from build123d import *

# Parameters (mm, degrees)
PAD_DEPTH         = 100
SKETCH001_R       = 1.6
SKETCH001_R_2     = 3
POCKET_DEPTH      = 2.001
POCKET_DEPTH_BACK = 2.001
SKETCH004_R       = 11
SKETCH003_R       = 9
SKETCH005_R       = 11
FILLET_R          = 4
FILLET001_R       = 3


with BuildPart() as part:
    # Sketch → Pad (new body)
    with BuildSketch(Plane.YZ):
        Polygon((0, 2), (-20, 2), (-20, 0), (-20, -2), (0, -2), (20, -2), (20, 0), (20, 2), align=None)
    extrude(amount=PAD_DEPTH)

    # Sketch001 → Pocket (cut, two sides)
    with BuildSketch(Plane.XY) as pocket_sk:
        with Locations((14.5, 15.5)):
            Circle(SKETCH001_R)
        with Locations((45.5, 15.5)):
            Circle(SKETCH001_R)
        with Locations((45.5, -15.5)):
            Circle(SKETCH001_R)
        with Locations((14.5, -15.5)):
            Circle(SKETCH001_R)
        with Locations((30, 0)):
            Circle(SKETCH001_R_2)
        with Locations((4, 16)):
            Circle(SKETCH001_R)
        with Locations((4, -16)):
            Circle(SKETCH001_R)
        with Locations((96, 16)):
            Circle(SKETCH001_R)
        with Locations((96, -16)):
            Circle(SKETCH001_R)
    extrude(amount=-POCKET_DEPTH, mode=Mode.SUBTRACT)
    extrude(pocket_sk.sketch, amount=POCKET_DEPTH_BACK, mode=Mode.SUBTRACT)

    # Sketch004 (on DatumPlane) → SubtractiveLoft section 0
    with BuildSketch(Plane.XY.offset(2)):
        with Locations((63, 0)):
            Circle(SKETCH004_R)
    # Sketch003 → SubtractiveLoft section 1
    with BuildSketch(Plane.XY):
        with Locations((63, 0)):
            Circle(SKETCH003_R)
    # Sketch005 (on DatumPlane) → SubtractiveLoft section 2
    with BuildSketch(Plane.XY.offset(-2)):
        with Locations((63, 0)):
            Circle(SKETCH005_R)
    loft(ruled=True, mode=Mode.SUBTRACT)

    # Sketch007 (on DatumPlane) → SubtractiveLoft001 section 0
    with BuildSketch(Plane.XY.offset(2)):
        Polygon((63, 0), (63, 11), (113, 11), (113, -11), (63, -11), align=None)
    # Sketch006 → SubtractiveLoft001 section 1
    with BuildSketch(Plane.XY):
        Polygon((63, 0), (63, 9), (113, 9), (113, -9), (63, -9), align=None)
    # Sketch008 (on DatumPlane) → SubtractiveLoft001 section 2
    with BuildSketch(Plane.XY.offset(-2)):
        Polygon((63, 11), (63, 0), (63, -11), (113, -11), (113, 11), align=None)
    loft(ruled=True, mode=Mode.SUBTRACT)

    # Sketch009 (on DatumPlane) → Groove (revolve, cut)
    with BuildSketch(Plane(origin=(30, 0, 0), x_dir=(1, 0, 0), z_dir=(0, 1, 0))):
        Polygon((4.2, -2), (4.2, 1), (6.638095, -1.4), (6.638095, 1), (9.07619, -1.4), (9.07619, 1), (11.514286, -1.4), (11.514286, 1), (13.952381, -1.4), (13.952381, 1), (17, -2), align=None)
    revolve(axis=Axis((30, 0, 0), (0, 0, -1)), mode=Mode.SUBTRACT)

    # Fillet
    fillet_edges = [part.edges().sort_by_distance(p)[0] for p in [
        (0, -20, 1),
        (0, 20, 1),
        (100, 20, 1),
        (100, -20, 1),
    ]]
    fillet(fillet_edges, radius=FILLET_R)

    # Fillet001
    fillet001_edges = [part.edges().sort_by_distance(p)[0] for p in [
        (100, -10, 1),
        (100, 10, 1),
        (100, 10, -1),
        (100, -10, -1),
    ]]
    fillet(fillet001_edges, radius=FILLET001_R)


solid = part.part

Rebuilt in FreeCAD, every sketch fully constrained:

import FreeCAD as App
import Part
import Sketcher
from FreeCAD import Vector


def edges_at(feature, points):
    """Names of the edges that pass closest to the given points."""
    edges = feature.Shape.Edges
    near = lambda p: min(range(len(edges)), key=lambda i: edges[i].distToShape(Part.Vertex(*p))[0])
    return sorted({f"Edge{near(p) + 1}" for p in points})


def add_polygon(sketch, points):
    """Adds a closed chain of lines whose ends are joined by coincident constraints."""
    first, n = sketch.GeometryCount, len(points)
    for a, b in zip(points, points[1:] + points[:1]):
        sketch.addGeometry(Part.LineSegment(App.Vector(*a, 0), App.Vector(*b, 0)), False)
    for i in range(n):
        sketch.addConstraint(Sketcher.Constraint("Coincident", first + i, 2, first + (i + 1) % n, 1))

doc = App.newDocument("Part")
params = doc.addObject("Spreadsheet::Sheet", "Params")
for row, (alias, value) in enumerate([
    ("sketch1_width", "40 mm"),
    ("sketch1_height", "4 mm"),
    ("pad1_length", "100 mm"),
    ("sketch2_diameter", "6 mm"),
    ("sketch2_diameter2", "3.2 mm"),
    ("sketch3_diameter", "22 mm"),
    ("sketch4_diameter", "18 mm"),
    ("sketch5_diameter", "22 mm"),
    ("sketch6_width", "50 mm"),
    ("sketch6_height", "22 mm"),
    ("sketch7_width", "50 mm"),
    ("sketch7_height", "18 mm"),
    ("sketch8_width", "50 mm"),
    ("sketch8_height", "22 mm"),
    ("sketch9_height", "3 mm"),
    ("sketch9_width", "12.8 mm"),
    ("sketch9_height2", "2.4 mm"),
    ("groove_angle", "360 deg"),
    ("fillet_radius", "4 mm"),
    ("fillet2_radius", "3 mm"),
], start=1):
    params.set(f"A{row}", alias)
    params.set(f"B{row}", "=" + value)
    params.setAlias(f"B{row}", alias)

body = doc.addObject("PartDesign::Body", "Body")

# Sketch on YZ plane
sketch1 = body.newObject("Sketcher::SketchObject", "Sketch")
sketch1.AttachmentSupport = (doc.getObject("YZ_Plane"), [""])
sketch1.MapMode = "FlatFace"
add_polygon(sketch1, [(-20, 2), (-20, -2), (20, -2), (20, 2)])  # lines 0-3
sketch1.addConstraint(Sketcher.Constraint("Vertical", 0))
sketch1.addConstraint(Sketcher.Constraint("Horizontal", 1))
sketch1.addConstraint(Sketcher.Constraint("Vertical", 2))
sketch1.addConstraint(Sketcher.Constraint("Horizontal", 3))
sketch1.addConstraint(Sketcher.Constraint("Symmetric", 0, 2, 2, 2, -1, 1))
sketch1.addConstraint(Sketcher.Constraint("DistanceX", 1, 1, 1, 2, 40.0))
sketch1.addConstraint(Sketcher.Constraint("DistanceY", 0, 2, 0, 1, 4.0))
sketch1.setExpression("Constraints[9]", "Params.sketch1_width")
sketch1.setExpression("Constraints[10]", "Params.sketch1_height")
pad1 = body.newObject("PartDesign::Pad", "Pad")
pad1.Profile = sketch1
pad1.setExpression("Length", "Params.pad1_length")

# Sketch on XY plane
sketch2 = body.newObject("Sketcher::SketchObject", "Sketch001")
sketch2.AttachmentSupport = (doc.getObject("XY_Plane"), [""])
sketch2.MapMode = "FlatFace"
sketch2.addGeometry(Part.Circle(Vector(14.5, 15.5, 0), Vector(0, 0, 1), 1.6), False)
sketch2.addGeometry(Part.Circle(Vector(45.5, 15.5, 0), Vector(0, 0, 1), 1.6), False)
sketch2.addGeometry(Part.Circle(Vector(45.5, -15.5, 0), Vector(0, 0, 1), 1.6), False)
sketch2.addGeometry(Part.Circle(Vector(14.5, -15.5, 0), Vector(0, 0, 1), 1.6), False)
sketch2.addGeometry(Part.Circle(Vector(30, 0, 0), Vector(0, 0, 1), 3), False)
sketch2.addGeometry(Part.Circle(Vector(4, 16, 0), Vector(0, 0, 1), 1.6), False)
sketch2.addGeometry(Part.Circle(Vector(4, -16, 0), Vector(0, 0, 1), 1.6), False)
sketch2.addGeometry(Part.Circle(Vector(96, 16, 0), Vector(0, 0, 1), 1.6), False)
sketch2.addGeometry(Part.Circle(Vector(96, -16, 0), Vector(0, 0, 1), 1.6), False)
sketch2.addConstraint(Sketcher.Constraint("Equal", 0, 1))
sketch2.addConstraint(Sketcher.Constraint("Equal", 1, 2))
sketch2.addConstraint(Sketcher.Constraint("Equal", 2, 3))
sketch2.addConstraint(Sketcher.Constraint("Equal", 3, 5))
sketch2.addConstraint(Sketcher.Constraint("Equal", 5, 6))
sketch2.addConstraint(Sketcher.Constraint("Equal", 6, 7))
sketch2.addConstraint(Sketcher.Constraint("Equal", 7, 8))
sketch2.addConstraint(Sketcher.Constraint("Symmetric", 1, 3, 2, 3, -1))
sketch2.addConstraint(Sketcher.Constraint("Symmetric", 0, 3, 3, 3, -1))
sketch2.addConstraint(Sketcher.Constraint("Symmetric", 5, 3, 6, 3, -1))
sketch2.addConstraint(Sketcher.Constraint("Symmetric", 7, 3, 8, 3, -1))
sketch2.addConstraint(Sketcher.Constraint("PointOnObject", 4, 3, -1))
sketch2.addConstraint(Sketcher.Constraint("Horizontal", 0, 3, 1, 3))
sketch2.addConstraint(Sketcher.Constraint("Horizontal", 5, 3, 7, 3))
sketch2.addConstraint(Sketcher.Constraint("Diameter", 4, 6.0))
sketch2.addConstraint(Sketcher.Constraint("Diameter", 0, 3.2))
sketch2.addConstraint(Sketcher.Constraint("DistanceX", -1, 1, 4, 3, 30.0))
sketch2.addConstraint(Sketcher.Constraint("DistanceX", -1, 1, 5, 3, 4.0))
sketch2.addConstraint(Sketcher.Constraint("DistanceY", -1, 1, 5, 3, 16.0))
sketch2.addConstraint(Sketcher.Constraint("DistanceX", -1, 1, 7, 3, 96.0))
sketch2.addConstraint(Sketcher.Constraint("DistanceX", 0, 3, 1, 3, 31.0))
sketch2.addConstraint(Sketcher.Constraint("DistanceY", 2, 3, 1, 3, 31.0))
sketch2.addConstraint(Sketcher.Constraint("DistanceX", -1, 1, 0, 3, 14.5))
sketch2.setExpression("Constraints[14]", "Params.sketch2_diameter")
sketch2.setExpression("Constraints[15]", "Params.sketch2_diameter2")
pocket1 = body.newObject("PartDesign::Pocket", "Pocket")
pocket1.Profile = sketch2
pocket1.Type = "ThroughAll"
pocket1.Midplane = True

# Sketch on XY plane
sketch3 = body.newObject("Sketcher::SketchObject", "Sketch002")
sketch3.AttachmentSupport = (doc.getObject("XY_Plane"), [""])
sketch3.MapMode = "FlatFace"
sketch3.AttachmentOffset = App.Placement(Vector(0, 0, 2), App.Rotation())
sketch3.addGeometry(Part.Circle(Vector(63, 0, 0), Vector(0, 0, 1), 11), False)
sketch3.addConstraint(Sketcher.Constraint("PointOnObject", 0, 3, -1))
sketch3.addConstraint(Sketcher.Constraint("Diameter", 0, 22.0))
sketch3.addConstraint(Sketcher.Constraint("DistanceX", -1, 1, 0, 3, 63.0))
sketch3.setExpression("Constraints[1]", "Params.sketch3_diameter")

# Sketch on XY plane
sketch4 = body.newObject("Sketcher::SketchObject", "Sketch003")
sketch4.AttachmentSupport = (doc.getObject("XY_Plane"), [""])
sketch4.MapMode = "FlatFace"
sketch4.addGeometry(Part.Circle(Vector(63, 0, 0), Vector(0, 0, 1), 9), False)
sketch4.addConstraint(Sketcher.Constraint("PointOnObject", 0, 3, -1))
sketch4.addConstraint(Sketcher.Constraint("Diameter", 0, 18.0))
sketch4.addConstraint(Sketcher.Constraint("DistanceX", -1, 1, 0, 3, 63.0))
sketch4.setExpression("Constraints[1]", "Params.sketch4_diameter")

# Sketch on XY plane
sketch5 = body.newObject("Sketcher::SketchObject", "Sketch004")
sketch5.AttachmentSupport = (doc.getObject("XY_Plane"), [""])
sketch5.MapMode = "FlatFace"
sketch5.AttachmentOffset = App.Placement(Vector(0, 0, -2), App.Rotation())
sketch5.addGeometry(Part.Circle(Vector(63, 0, 0), Vector(0, 0, 1), 11), False)
sketch5.addConstraint(Sketcher.Constraint("PointOnObject", 0, 3, -1))
sketch5.addConstraint(Sketcher.Constraint("Diameter", 0, 22.0))
sketch5.addConstraint(Sketcher.Constraint("DistanceX", -1, 1, 0, 3, 63.0))
sketch5.setExpression("Constraints[1]", "Params.sketch5_diameter")

subtractiveloft = body.newObject("PartDesign::SubtractiveLoft", "SubtractiveLoft")
subtractiveloft.Profile = sketch3
subtractiveloft.Sections = [sketch4, sketch5]
subtractiveloft.Ruled = True

# Sketch on XY plane
sketch6 = body.newObject("Sketcher::SketchObject", "Sketch005")
sketch6.AttachmentSupport = (doc.getObject("XY_Plane"), [""])
sketch6.MapMode = "FlatFace"
sketch6.AttachmentOffset = App.Placement(Vector(0, 0, 2), App.Rotation())
add_polygon(sketch6, [(63, 11), (63, -11), (113, -11), (113, 11)])  # lines 0-3
sketch6.addConstraint(Sketcher.Constraint("Vertical", 0))
sketch6.addConstraint(Sketcher.Constraint("Horizontal", 1))
sketch6.addConstraint(Sketcher.Constraint("Vertical", 2))
sketch6.addConstraint(Sketcher.Constraint("Horizontal", 3))
sketch6.addConstraint(Sketcher.Constraint("DistanceX", 1, 1, 1, 2, 50.0))
sketch6.addConstraint(Sketcher.Constraint("DistanceY", 0, 2, 0, 1, 22.0))
sketch6.addConstraint(Sketcher.Constraint("DistanceX", -1, 1, 0, 2, 63.0))
sketch6.addConstraint(Sketcher.Constraint("DistanceY", 0, 2, -1, 1, 11.0))
sketch6.setExpression("Constraints[8]", "Params.sketch6_width")
sketch6.setExpression("Constraints[9]", "Params.sketch6_height")

# Sketch on XY plane
sketch7 = body.newObject("Sketcher::SketchObject", "Sketch006")
sketch7.AttachmentSupport = (doc.getObject("XY_Plane"), [""])
sketch7.MapMode = "FlatFace"
add_polygon(sketch7, [(63, 9), (63, -9), (113, -9), (113, 9)])  # lines 0-3
sketch7.addConstraint(Sketcher.Constraint("Vertical", 0))
sketch7.addConstraint(Sketcher.Constraint("Horizontal", 1))
sketch7.addConstraint(Sketcher.Constraint("Vertical", 2))
sketch7.addConstraint(Sketcher.Constraint("Horizontal", 3))
sketch7.addConstraint(Sketcher.Constraint("DistanceX", 1, 1, 1, 2, 50.0))
sketch7.addConstraint(Sketcher.Constraint("DistanceY", 0, 2, 0, 1, 18.0))
sketch7.addConstraint(Sketcher.Constraint("DistanceX", -1, 1, 0, 2, 63.0))
sketch7.addConstraint(Sketcher.Constraint("DistanceY", 0, 2, -1, 1, 9.0))
sketch7.setExpression("Constraints[8]", "Params.sketch7_width")
sketch7.setExpression("Constraints[9]", "Params.sketch7_height")

# Sketch on XY plane
sketch8 = body.newObject("Sketcher::SketchObject", "Sketch007")
sketch8.AttachmentSupport = (doc.getObject("XY_Plane"), [""])
sketch8.MapMode = "FlatFace"
sketch8.AttachmentOffset = App.Placement(Vector(0, 0, -2), App.Rotation())
add_polygon(sketch8, [(63, 11), (63, -11), (113, -11), (113, 11)])  # lines 0-3
sketch8.addConstraint(Sketcher.Constraint("Vertical", 0))
sketch8.addConstraint(Sketcher.Constraint("Horizontal", 1))
sketch8.addConstraint(Sketcher.Constraint("Vertical", 2))
sketch8.addConstraint(Sketcher.Constraint("Horizontal", 3))
sketch8.addConstraint(Sketcher.Constraint("DistanceX", 1, 1, 1, 2, 50.0))
sketch8.addConstraint(Sketcher.Constraint("DistanceY", 0, 2, 0, 1, 22.0))
sketch8.addConstraint(Sketcher.Constraint("DistanceX", -1, 1, 0, 2, 63.0))
sketch8.addConstraint(Sketcher.Constraint("DistanceY", 0, 2, -1, 1, 11.0))
sketch8.setExpression("Constraints[8]", "Params.sketch8_width")
sketch8.setExpression("Constraints[9]", "Params.sketch8_height")

subtractiveloft2 = body.newObject("PartDesign::SubtractiveLoft", "SubtractiveLoft001")
subtractiveloft2.Profile = sketch6
subtractiveloft2.Sections = [sketch7, sketch8]
subtractiveloft2.Ruled = True

# Sketch on XZ plane
sketch9 = body.newObject("Sketcher::SketchObject", "Sketch008")
sketch9.AttachmentSupport = (doc.getObject("XZ_Plane"), [""])
sketch9.MapMode = "FlatFace"
add_polygon(sketch9, [(34.2, -1), (34.2, 2), (47, 2), (44, -1), (44, 1.4), (41.5, -1), (41.5, 1.4), (39.1, -1), (39.1, 1.4), (36.6, -1), (36.6, 1.4)])  # lines 0-10
sketch9.addGeometry(Part.LineSegment(Vector(30, 2, 0), Vector(30, -1, 0)), True)  # axis
sketch9.addConstraint(Sketcher.Constraint("Vertical", 0))
sketch9.addConstraint(Sketcher.Constraint("Horizontal", 1))
sketch9.addConstraint(Sketcher.Constraint("Vertical", 3))
sketch9.addConstraint(Sketcher.Constraint("Vertical", 5))
sketch9.addConstraint(Sketcher.Constraint("Vertical", 7))
sketch9.addConstraint(Sketcher.Constraint("Vertical", 9))
sketch9.addConstraint(Sketcher.Constraint("Vertical", 11))
sketch9.addConstraint(Sketcher.Constraint("Parallel", 2, 4))
sketch9.addConstraint(Sketcher.Constraint("Parallel", 4, 6))
sketch9.addConstraint(Sketcher.Constraint("Parallel", 6, 8))
sketch9.addConstraint(Sketcher.Constraint("Parallel", 8, 10))
sketch9.addConstraint(Sketcher.Constraint("Horizontal", 2, 2, 4, 2))
sketch9.addConstraint(Sketcher.Constraint("Horizontal", 3, 2, 5, 2))
sketch9.addConstraint(Sketcher.Constraint("Horizontal", 4, 2, 6, 2))
sketch9.addConstraint(Sketcher.Constraint("Horizontal", 5, 2, 7, 2))
sketch9.addConstraint(Sketcher.Constraint("Horizontal", 6, 2, 8, 2))
sketch9.addConstraint(Sketcher.Constraint("Horizontal", 7, 2, 9, 2))
sketch9.addConstraint(Sketcher.Constraint("Horizontal", 8, 2, 10, 2))
sketch9.addConstraint(Sketcher.Constraint("Horizontal", 1, 2, 11, 1))
sketch9.addConstraint(Sketcher.Constraint("Horizontal", 10, 2, 11, 2))
sketch9.addConstraint(Sketcher.Constraint("DistanceY", 0, 1, 0, 2, 3.0))
sketch9.addConstraint(Sketcher.Constraint("DistanceX", 1, 1, 1, 2, 12.8))
sketch9.addConstraint(Sketcher.Constraint("DistanceY", 3, 1, 3, 2, 2.4))
sketch9.addConstraint(Sketcher.Constraint("DistanceY", -1, 1, 0, 2, 2.0))
sketch9.addConstraint(Sketcher.Constraint("DistanceX", -1, 1, 1, 2, 47.0))
sketch9.addConstraint(Sketcher.Constraint("DistanceX", -1, 1, 11, 1, 30.0))
sketch9.setExpression("Constraints[31]", "Params.sketch9_height")
sketch9.setExpression("Constraints[32]", "Params.sketch9_width")
sketch9.setExpression("Constraints[33]", "Params.sketch9_height2")
groove = body.newObject("PartDesign::Groove", "Groove")
groove.Profile = sketch9
groove.ReferenceAxis = (sketch9, ["Axis0"])
groove.setExpression("Angle", "Params.groove_angle")
doc.recompute()

fillet = body.newObject("PartDesign::Fillet", "Fillet")
fillet.Base = (groove, edges_at(groove, [
    (0, -20, 0),
    (0, 20, 0),
    (100, 20, 0),
    (100, -20, 0),
]))
fillet.setExpression("Radius", "Params.fillet_radius")
doc.recompute()

fillet2 = body.newObject("PartDesign::Fillet", "Fillet001")
fillet2.Base = (fillet, edges_at(fillet, [
    (100, -10, 1),
    (100, 10, 1),
    (100, 10, -1),
    (100, -10, -1),
]))
fillet2.setExpression("Radius", "Params.fillet2_radius")

doc.recompute()
